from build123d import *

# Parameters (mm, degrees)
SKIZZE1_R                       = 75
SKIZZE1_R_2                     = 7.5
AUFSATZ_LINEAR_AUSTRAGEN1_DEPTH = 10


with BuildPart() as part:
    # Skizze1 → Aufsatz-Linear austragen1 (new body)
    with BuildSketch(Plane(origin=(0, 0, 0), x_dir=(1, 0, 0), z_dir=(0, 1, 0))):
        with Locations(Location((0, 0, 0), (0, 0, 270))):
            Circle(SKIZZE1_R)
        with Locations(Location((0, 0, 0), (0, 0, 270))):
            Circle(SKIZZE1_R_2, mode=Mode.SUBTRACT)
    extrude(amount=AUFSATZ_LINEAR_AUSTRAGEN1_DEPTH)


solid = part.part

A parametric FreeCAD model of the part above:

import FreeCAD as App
import Part
import Sketcher

doc = App.newDocument("Part")
params = doc.addObject("Spreadsheet::Sheet", "Params")
for row, (alias, value) in enumerate([
    ("sketch1_diameter", "150 mm"),
    ("sketch1_diameter2", "15 mm"),
    ("pad1_length", "10 mm"),
], start=1):
    params.set(f"A{row}", alias)
    params.set(f"B{row}", "=" + value)
    params.setAlias(f"B{row}", alias)

body = doc.addObject("PartDesign::Body", "Body")

# Sketch on XZ plane
sketch1 = body.newObject("Sketcher::SketchObject", "Sketch")
sketch1.AttachmentSupport = (doc.getObject("XZ_Plane"), [""])
sketch1.MapMode = "FlatFace"
sketch1.addGeometry([
    Part.Circle(App.Vector(0, 0, 0), App.Vector(0, 0, 1), 75),
    Part.Circle(App.Vector(0, 0, 0), App.Vector(0, 0, 1), 8),
], False)
sketch1.addConstraint([
    Sketcher.Constraint("Coincident", 0, 3, -1, 1),
    Sketcher.Constraint("Coincident", 1, 3, -1, 1),
    Sketcher.Constraint("Diameter", 0, 150.0),
    Sketcher.Constraint("Diameter", 1, 15.0),
])
sketch1.setExpression("Constraints[2]", "Params.sketch1_diameter")
sketch1.setExpression("Constraints[3]", "Params.sketch1_diameter2")
pad1 = body.newObject("PartDesign::Pad", "Pad")
pad1.Profile = sketch1
pad1.setExpression("Length", "Params.pad1_length")
pad1.Reversed = True

doc.recompute()
